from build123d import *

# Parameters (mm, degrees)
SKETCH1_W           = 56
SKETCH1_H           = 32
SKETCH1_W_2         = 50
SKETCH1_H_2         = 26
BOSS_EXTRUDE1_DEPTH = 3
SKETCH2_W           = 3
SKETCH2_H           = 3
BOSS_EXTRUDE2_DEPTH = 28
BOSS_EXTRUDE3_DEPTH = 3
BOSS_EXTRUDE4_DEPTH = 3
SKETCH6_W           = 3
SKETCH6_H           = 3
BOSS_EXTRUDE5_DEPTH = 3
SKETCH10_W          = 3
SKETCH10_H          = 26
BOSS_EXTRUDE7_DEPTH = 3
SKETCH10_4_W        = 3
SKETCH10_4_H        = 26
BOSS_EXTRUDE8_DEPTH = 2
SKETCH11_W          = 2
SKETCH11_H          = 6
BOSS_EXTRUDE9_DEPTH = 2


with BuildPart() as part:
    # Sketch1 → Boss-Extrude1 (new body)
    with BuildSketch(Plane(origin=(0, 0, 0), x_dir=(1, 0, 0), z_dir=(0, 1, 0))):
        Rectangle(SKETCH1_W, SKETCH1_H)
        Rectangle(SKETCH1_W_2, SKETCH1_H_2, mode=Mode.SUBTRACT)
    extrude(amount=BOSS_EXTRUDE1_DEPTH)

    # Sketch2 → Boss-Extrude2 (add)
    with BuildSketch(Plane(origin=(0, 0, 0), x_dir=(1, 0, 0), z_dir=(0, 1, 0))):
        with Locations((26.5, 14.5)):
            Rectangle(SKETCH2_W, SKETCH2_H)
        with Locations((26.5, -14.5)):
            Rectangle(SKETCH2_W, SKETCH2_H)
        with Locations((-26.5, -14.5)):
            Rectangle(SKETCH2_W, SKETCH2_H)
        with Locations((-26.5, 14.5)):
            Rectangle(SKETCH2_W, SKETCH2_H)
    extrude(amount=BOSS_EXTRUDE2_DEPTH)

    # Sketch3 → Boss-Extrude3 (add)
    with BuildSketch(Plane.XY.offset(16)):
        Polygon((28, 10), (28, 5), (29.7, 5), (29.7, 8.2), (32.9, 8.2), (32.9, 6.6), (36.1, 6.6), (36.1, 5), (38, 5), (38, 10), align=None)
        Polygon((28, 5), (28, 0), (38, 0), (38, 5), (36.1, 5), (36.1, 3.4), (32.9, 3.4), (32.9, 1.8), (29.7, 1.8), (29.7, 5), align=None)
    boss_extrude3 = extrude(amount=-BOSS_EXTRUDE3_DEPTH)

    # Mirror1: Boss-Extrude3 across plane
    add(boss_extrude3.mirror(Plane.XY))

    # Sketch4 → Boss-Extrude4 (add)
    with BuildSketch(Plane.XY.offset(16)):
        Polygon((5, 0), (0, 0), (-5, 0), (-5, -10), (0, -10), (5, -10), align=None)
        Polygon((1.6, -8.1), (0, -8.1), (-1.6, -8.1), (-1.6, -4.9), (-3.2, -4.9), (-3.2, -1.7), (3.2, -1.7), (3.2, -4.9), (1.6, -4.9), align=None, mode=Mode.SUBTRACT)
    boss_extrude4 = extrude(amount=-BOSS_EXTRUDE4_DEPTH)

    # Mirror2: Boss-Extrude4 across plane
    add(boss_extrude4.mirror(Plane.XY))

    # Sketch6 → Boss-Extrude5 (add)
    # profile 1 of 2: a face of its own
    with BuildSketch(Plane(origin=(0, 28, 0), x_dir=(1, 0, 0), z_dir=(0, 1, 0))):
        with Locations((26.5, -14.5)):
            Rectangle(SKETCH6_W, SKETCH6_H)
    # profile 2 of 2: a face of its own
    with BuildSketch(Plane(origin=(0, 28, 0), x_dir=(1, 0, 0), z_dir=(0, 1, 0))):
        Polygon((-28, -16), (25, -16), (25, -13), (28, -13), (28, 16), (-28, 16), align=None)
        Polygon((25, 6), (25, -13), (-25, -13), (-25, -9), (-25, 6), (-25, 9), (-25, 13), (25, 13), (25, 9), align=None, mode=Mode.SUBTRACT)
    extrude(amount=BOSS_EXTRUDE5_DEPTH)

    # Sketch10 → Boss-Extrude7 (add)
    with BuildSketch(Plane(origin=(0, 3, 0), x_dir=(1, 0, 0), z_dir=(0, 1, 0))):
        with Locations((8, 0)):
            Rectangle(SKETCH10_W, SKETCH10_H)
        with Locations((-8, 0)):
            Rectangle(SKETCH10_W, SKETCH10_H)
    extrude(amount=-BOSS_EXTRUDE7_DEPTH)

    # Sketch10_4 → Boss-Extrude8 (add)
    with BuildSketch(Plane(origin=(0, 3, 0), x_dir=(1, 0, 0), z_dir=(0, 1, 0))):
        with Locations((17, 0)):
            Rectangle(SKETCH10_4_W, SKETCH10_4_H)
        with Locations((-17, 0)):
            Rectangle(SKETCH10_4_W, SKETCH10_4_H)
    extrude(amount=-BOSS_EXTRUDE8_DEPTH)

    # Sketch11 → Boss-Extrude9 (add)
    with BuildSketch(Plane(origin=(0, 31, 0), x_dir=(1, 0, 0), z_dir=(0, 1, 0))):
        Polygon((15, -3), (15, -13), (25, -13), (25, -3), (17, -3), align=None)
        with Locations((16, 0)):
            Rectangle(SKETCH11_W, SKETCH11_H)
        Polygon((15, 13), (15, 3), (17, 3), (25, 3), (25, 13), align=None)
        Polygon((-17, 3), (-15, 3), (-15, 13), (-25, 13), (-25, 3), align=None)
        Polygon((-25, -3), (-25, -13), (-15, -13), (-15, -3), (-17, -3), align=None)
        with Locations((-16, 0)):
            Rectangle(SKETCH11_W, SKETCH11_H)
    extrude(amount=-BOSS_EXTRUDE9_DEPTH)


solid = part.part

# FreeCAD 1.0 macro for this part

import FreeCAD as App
import Part
import Sketcher
Q = App.Units.Quantity


def add_polygon(sketch, points):
    """Adds a closed chain of lines whose ends are joined by coincident constraints."""
    first, n = sketch.GeometryCount, len(points)
    for a, b in zip(points, points[1:] + points[:1]):
        sketch.addGeometry(Part.LineSegment(App.Vector(*a, 0), App.Vector(*b, 0)), False)
    for i in range(n):
        sketch.addConstraint(Sketcher.Constraint("Coincident", first + i, 2, first + (i + 1) % n, 1))

doc = App.newDocument("Part")
body = doc.addObject("PartDesign::Body", "Body")

sketch1 = body.newObject("Sketcher::SketchObject", "Sketch")
sketch1.AttachmentSupport = (doc.getObject("XZ_Plane"), [""])
sketch1.MapMode = "FlatFace"
add_polygon(sketch1, [(-28, -16), (-28, 16), (28, 16), (28, -16)])
add_polygon(sketch1, [(25, 13), (-25, 13), (-25, -13), (25, -13)])
sketch1.addConstraint(Sketcher.Constraint("Vertical", 0))
sketch1.addConstraint(Sketcher.Constraint("Horizontal", 1))
sketch1.addConstraint(Sketcher.Constraint("Vertical", 2))
sketch1.addConstraint(Sketcher.Constraint("Horizontal", 3))
sketch1.addConstraint(Sketcher.Constraint("Horizontal", 4))
sketch1.addConstraint(Sketcher.Constraint("Vertical", 5))
sketch1.addConstraint(Sketcher.Constraint("Horizontal", 6))
sketch1.addConstraint(Sketcher.Constraint("Vertical", 7))
sketch1.addConstraint(Sketcher.Constraint("Symmetric", 0, 2, 2, 2, -1, 1))
sketch1.addConstraint(Sketcher.Constraint("Symmetric", 4, 2, 6, 2, -1, 1))
sketch1.addConstraint(Sketcher.Constraint("DistanceX", 1, 1, 1, 2, Q("56 mm")))
sketch1.addConstraint(Sketcher.Constraint("DistanceX", 4, 2, 4, 1, Q("50 mm")))
sketch1.addConstraint(Sketcher.Constraint("DistanceY", 0, 1, 0, 2, Q("32 mm")))
sketch1.addConstraint(Sketcher.Constraint("DistanceY", 5, 2, 5, 1, Q("26 mm")))
pad1 = body.newObject("PartDesign::Pad", "Pad")
pad1.Profile = sketch1
pad1.Length = 3
pad1.Reversed = True

sketch2 = body.newObject("Sketcher::SketchObject", "Sketch001")
sketch2.AttachmentSupport = (doc.getObject("XZ_Plane"), [""])
sketch2.MapMode = "FlatFace"
add_polygon(sketch2, [(25, -16), (25, -13), (28, -13), (28, -16)])
add_polygon(sketch2, [(25, 13), (25, 16), (28, 16), (28, 13)])
add_polygon(sketch2, [(-28, 13), (-28, 16), (-25, 16), (-25, 13)])
add_polygon(sketch2, [(-28, -16), (-28, -13), (-25, -13), (-25, -16)])
sketch2.addConstraint(Sketcher.Constraint("Vertical", 0))
sketch2.addConstraint(Sketcher.Constraint("Horizontal", 1))
sketch2.addConstraint(Sketcher.Constraint("Vertical", 2))
sketch2.addConstraint(Sketcher.Constraint("Horizontal", 3))
sketch2.addConstraint(Sketcher.Constraint("Vertical", 4))
sketch2.addConstraint(Sketcher.Constraint("Horizontal", 5))
sketch2.addConstraint(Sketcher.Constraint("Vertical", 6))
sketch2.addConstraint(Sketcher.Constraint("Horizontal", 7))
sketch2.addConstraint(Sketcher.Constraint("Vertical", 8))
sketch2.addConstraint(Sketcher.Constraint("Horizontal", 9))
sketch2.addConstraint(Sketcher.Constraint("Vertical", 10))
sketch2.addConstraint(Sketcher.Constraint("Horizontal", 11))
sketch2.addConstraint(Sketcher.Constraint("Vertical", 12))
sketch2.addConstraint(Sketcher.Constraint("Horizontal", 13))
sketch2.addConstraint(Sketcher.Constraint("Vertical", 14))
sketch2.addConstraint(Sketcher.Constraint("Horizontal", 15))
sketch2.addConstraint(Sketcher.Constraint("Symmetric", 2, 2, 8, 2, -1, 1))
sketch2.addConstraint(Sketcher.Constraint("Symmetric", 0, 2, 10, 2, -1, 1))
sketch2.addConstraint(Sketcher.Constraint("Symmetric", 6, 2, 12, 2, -1, 1))
sketch2.addConstraint(Sketcher.Constraint("Symmetric", 4, 2, 14, 2, -1, 1))
sketch2.addConstraint(Sketcher.Constraint("Symmetric", 5, 2, 8, 2, -2))
sketch2.addConstraint(Sketcher.Constraint("Symmetric", 7, 2, 10, 2, -2))
sketch2.addConstraint(Sketcher.Constraint("Equal", 15, 0))
sketch2.addConstraint(Sketcher.Constraint("DistanceX", 1, 1, 1, 2, Q("3 mm")))
sketch2.addConstraint(Sketcher.Constraint("DistanceX", -1, 1, 0, 2, Q("25 mm")))
sketch2.addConstraint(Sketcher.Constraint("DistanceY", 0, 2, -1, 1, Q("13 mm")))
pad2 = body.newObject("PartDesign::Pad", "Pad001")
pad2.Profile = sketch2
pad2.Length = 28
pad2.Reversed = True

sketch3 = body.newObject("Sketcher::SketchObject", "Sketch002")
sketch3.AttachmentSupport = (doc.getObject("XY_Plane"), [""])
sketch3.MapMode = "FlatFace"
sketch3.AttachmentOffset = App.Placement(App.Vector(0, 0, 16), App.Rotation())
add_polygon(sketch3, [(28, 10), (28, 0), (38, 0), (38, 10)])
add_polygon(sketch3, [(29.7, 8.2), (32.9, 8.2), (32.9, 6.6), (36.1, 6.6), (36.1, 3.4), (32.9, 3.4), (32.9, 1.8), (29.7, 1.8)])
sketch3.addConstraint(Sketcher.Constraint("Vertical", 0))
sketch3.addConstraint(Sketcher.Constraint("Horizontal", 1))
sketch3.addConstraint(Sketcher.Constraint("Vertical", 2))
sketch3.addConstraint(Sketcher.Constraint("Horizontal", 3))
sketch3.addConstraint(Sketcher.Constraint("Horizontal", 4))
sketch3.addConstraint(Sketcher.Constraint("Vertical", 5))
sketch3.addConstraint(Sketcher.Constraint("Horizontal", 6))
sketch3.addConstraint(Sketcher.Constraint("Vertical", 7))
sketch3.addConstraint(Sketcher.Constraint("Horizontal", 8))
sketch3.addConstraint(Sketcher.Constraint("Vertical", 9))
sketch3.addConstraint(Sketcher.Constraint("Horizontal", 10))
sketch3.addConstraint(Sketcher.Constraint("Vertical", 11))
sketch3.addConstraint(Sketcher.Constraint("PointOnObject", 0, 2, -1))
sketch3.addConstraint(Sketcher.Constraint("Vertical", 5, 2, 8, 2))
sketch3.addConstraint(Sketcher.Constraint("Equal", 4, 6))
sketch3.addConstraint(Sketcher.Constraint("Equal", 3, 0))
sketch3.addConstraint(Sketcher.Constraint("Equal", 10, 7))
sketch3.addConstraint(Sketcher.Constraint("Equal", 5, 9))
sketch3.addConstraint(Sketcher.Constraint("DistanceX", 1, 1, 1, 2, Q("10 mm")))
sketch3.addConstraint(Sketcher.Constraint("DistanceX", 4, 1, 4, 2, Q("3.2 mm")))
sketch3.addConstraint(Sketcher.Constraint("DistanceY", 5, 2, 5, 1, Q("1.6 mm")))
sketch3.addConstraint(Sketcher.Constraint("DistanceX", -1, 1, 0, 2, Q("28 mm")))
sketch3.addConstraint(Sketcher.Constraint("DistanceX", -1, 1, 4, 2, Q("32.9 mm")))
sketch3.addConstraint(Sketcher.Constraint("DistanceY", -1, 1, 4, 2, Q("8.2 mm")))
pad3 = body.newObject("PartDesign::Pad", "Pad002")
pad3.Profile = sketch3
pad3.Length = 3
pad3.Reversed = True
doc.recompute()

mirrored = body.newObject("PartDesign::Mirrored", "Mirrored")
mirrored.Originals = [pad3]
mirrored.MirrorPlane = (doc.getObject("XY_Plane"), [""])
body.Tip = mirrored

sketch4 = body.newObject("Sketcher::SketchObject", "Sketch003")
sketch4.AttachmentSupport = (doc.getObject("XY_Plane"), [""])
sketch4.MapMode = "FlatFace"
sketch4.AttachmentOffset = App.Placement(App.Vector(0, 0, 16), App.Rotation())
add_polygon(sketch4, [(5, 0), (-5, 0), (-5, -10), (5, -10)])
add_polygon(sketch4, [(1.6, -4.9), (1.6, -8.1), (-1.6, -8.1), (-1.6, -4.9), (-3.2, -4.9), (-3.2, -1.7), (3.2, -1.7), (3.2, -4.9)])
sketch4.addConstraint(Sketcher.Constraint("Horizontal", 0))
sketch4.addConstraint(Sketcher.Constraint("Vertical", 1))
sketch4.addConstraint(Sketcher.Constraint("Horizontal", 2))
sketch4.addConstraint(Sketcher.Constraint("Vertical", 3))
sketch4.addConstraint(Sketcher.Constraint("Vertical", 4))
sketch4.addConstraint(Sketcher.Constraint("Horizontal", 5))
sketch4.addConstraint(Sketcher.Constraint("Vertical", 6))
sketch4.addConstraint(Sketcher.Constraint("Horizontal", 7))
sketch4.addConstraint(Sketcher.Constraint("Vertical", 8))
sketch4.addConstraint(Sketcher.Constraint("Horizontal", 9))
sketch4.addConstraint(Sketcher.Constraint("Vertical", 10))
sketch4.addConstraint(Sketcher.Constraint("Horizontal", 11))
sketch4.addConstraint(Sketcher.Constraint("Symmetric", 0, 2, 3, 2, -1, 1))
sketch4.addConstraint(Sketcher.Constraint("Symmetric", 7, 2, 10, 2, -2))
sketch4.addConstraint(Sketcher.Constraint("Equal", 7, 11))
sketch4.addConstraint(Sketcher.Constraint("Equal", 2, 1))
sketch4.addConstraint(Sketcher.Constraint("Equal", 5, 4))
sketch4.addConstraint(Sketcher.Constraint("Equal", 6, 8))
sketch4.addConstraint(Sketcher.Constraint("DistanceX", 0, 2, 0, 1, Q("10 mm")))
sketch4.addConstraint(Sketcher.Constraint("DistanceX", 5, 2, 5, 1, Q("3.2 mm")))
sketch4.addConstraint(Sketcher.Constraint("DistanceX", 7, 2, 7, 1, Q("1.6 mm")))
sketch4.addConstraint(Sketcher.Constraint("DistanceY", 4, 2, -1, 1, Q("8.1 mm")))
pad4 = body.newObject("PartDesign::Pad", "Pad003")
pad4.Profile = sketch4
pad4.Length = 3
pad4.Reversed = True
doc.recompute()

mirrored2 = body.newObject("PartDesign::Mirrored", "Mirrored001")
mirrored2.Originals = [pad4]
mirrored2.MirrorPlane = (doc.getObject("XY_Plane"), [""])
body.Tip = mirrored2

sketch5 = body.newObject("Sketcher::SketchObject", "Sketch004")
sketch5.AttachmentSupport = (doc.getObject("XZ_Plane"), [""])
sketch5.MapMode = "FlatFace"
sketch5.AttachmentOffset = App.Placement(App.Vector(0, 0, -28), App.Rotation())
add_polygon(sketch5, [(28, 16), (28, -16), (-28, -16), (-28, 16)])
add_polygon(sketch5, [(-25, 13), (-25, -13), (25, -13), (25, 13)])
sketch5.addConstraint(Sketcher.Constraint("Vertical", 0))
sketch5.addConstraint(Sketcher.Constraint("Horizontal", 1))
sketch5.addConstraint(Sketcher.Constraint("Vertical", 2))
sketch5.addConstraint(Sketcher.Constraint("Horizontal", 3))
sketch5.addConstraint(Sketcher.Constraint("Vertical", 4))
sketch5.addConstraint(Sketcher.Constraint("Horizontal", 5))
sketch5.addConstraint(Sketcher.Constraint("Vertical", 6))
sketch5.addConstraint(Sketcher.Constraint("Horizontal", 7))
sketch5.addConstraint(Sketcher.Constraint("Symmetric", 0, 2, 2, 2, -1, 1))
sketch5.addConstraint(Sketcher.Constraint("Symmetric", 4, 2, 6, 2, -1, 1))
sketch5.addConstraint(Sketcher.Constraint("DistanceX", 1, 2, 1, 1, Q("56 mm")))
sketch5.addConstraint(Sketcher.Constraint("DistanceX", 5, 1, 5, 2, Q("50 mm")))
sketch5.addConstraint(Sketcher.Constraint("DistanceY", 0, 2, 0, 1, Q("32 mm")))
sketch5.addConstraint(Sketcher.Constraint("DistanceY", 4, 2, 4, 1, Q("26 mm")))
pad5 = body.newObject("PartDesign::Pad", "Pad004")
pad5.Profile = sketch5
pad5.Length = 3
pad5.Reversed = True

sketch6 = body.newObject("Sketcher::SketchObject", "Sketch005")
sketch6.AttachmentSupport = (doc.getObject("XZ_Plane"), [""])
sketch6.MapMode = "FlatFace"
sketch6.AttachmentOffset = App.Placement(App.Vector(0, 0, -3), App.Rotation())
add_polygon(sketch6, [(6.5, -13), (6.5, 13), (9.5, 13), (9.5, -13)])
add_polygon(sketch6, [(-9.5, -13), (-9.5, 13), (-6.5, 13), (-6.5, -13)])
sketch6.addConstraint(Sketcher.Constraint("Vertical", 0))
sketch6.addConstraint(Sketcher.Constraint("Horizontal", 1))
sketch6.addConstraint(Sketcher.Constraint("Vertical", 2))
sketch6.addConstraint(Sketcher.Constraint("Horizontal", 3))
sketch6.addConstraint(Sketcher.Constraint("Vertical", 4))
sketch6.addConstraint(Sketcher.Constraint("Horizontal", 5))
sketch6.addConstraint(Sketcher.Constraint("Vertical", 6))
sketch6.addConstraint(Sketcher.Constraint("Horizontal", 7))
sketch6.addConstraint(Sketcher.Constraint("Symmetric", 2, 2, 4, 2, -1, 1))
sketch6.addConstraint(Sketcher.Constraint("Symmetric", 0, 2, 6, 2, -1, 1))
sketch6.addConstraint(Sketcher.Constraint("Horizontal", 1, 2, 4, 2))
sketch6.addConstraint(Sketcher.Constraint("DistanceX", 1, 1, 1, 2, Q("3 mm")))
sketch6.addConstraint(Sketcher.Constraint("DistanceY", 0, 1, 0, 2, Q("26 mm")))
sketch6.addConstraint(Sketcher.Constraint("DistanceX", 4, 2, 0, 2, Q("16 mm")))
pad6 = body.newObject("PartDesign::Pad", "Pad005")
pad6.Profile = sketch6
pad6.Length = 3

sketch7 = body.newObject("Sketcher::SketchObject", "Sketch006")
sketch7.AttachmentSupport = (doc.getObject("XZ_Plane"), [""])
sketch7.MapMode = "FlatFace"
sketch7.AttachmentOffset = App.Placement(App.Vector(0, 0, -3), App.Rotation())
add_polygon(sketch7, [(15.5, -13), (15.5, 13), (18.5, 13), (18.5, -13)])
add_polygon(sketch7, [(-18.5, -13), (-18.5, 13), (-15.5, 13), (-15.5, -13)])
sketch7.addConstraint(Sketcher.Constraint("Vertical", 0))
sketch7.addConstraint(Sketcher.Constraint("Horizontal", 1))
sketch7.addConstraint(Sketcher.Constraint("Vertical", 2))
sketch7.addConstraint(Sketcher.Constraint("Horizontal", 3))
sketch7.addConstraint(Sketcher.Constraint("Vertical", 4))
sketch7.addConstraint(Sketcher.Constraint("Horizontal", 5))
sketch7.addConstraint(Sketcher.Constraint("Vertical", 6))
sketch7.addConstraint(Sketcher.Constraint("Horizontal", 7))
sketch7.addConstraint(Sketcher.Constraint("Symmetric", 2, 2, 4, 2, -1, 1))
sketch7.addConstraint(Sketcher.Constraint("Symmetric", 0, 2, 6, 2, -1, 1))
sketch7.addConstraint(Sketcher.Constraint("Horizontal", 1, 2, 4, 2))
sketch7.addConstraint(Sketcher.Constraint("DistanceX", 1, 1, 1, 2, Q("3 mm")))
sketch7.addConstraint(Sketcher.Constraint("DistanceY", 0, 1, 0, 2, Q("26 mm")))
sketch7.addConstraint(Sketcher.Constraint("DistanceX", 4, 2, 0, 2, Q("34 mm")))
pad7 = body.newObject("PartDesign::Pad", "Pad006")
pad7.Profile = sketch7
pad7.Length = 2

sketch8 = body.newObject("Sketcher::SketchObject", "Sketch007")
sketch8.AttachmentSupport = (doc.getObject("XZ_Plane"), [""])
sketch8.MapMode = "FlatFace"
sketch8.AttachmentOffset = App.Placement(App.Vector(0, 0, -31), App.Rotation())
add_polygon(sketch8, [(15, 13), (25, 13), (25, 3), (17, 3), (17, -3), (25, -3), (25, -13), (15, -13)])
add_polygon(sketch8, [(-15, -13), (-25, -13), (-25, -3), (-17, -3), (-17, 3), (-25, 3), (-25, 13), (-15, 13)])
sketch8.addConstraint(Sketcher.Constraint("Horizontal", 0))
sketch8.addConstraint(Sketcher.Constraint("Vertical", 1))
sketch8.addConstraint(Sketcher.Constraint("Horizontal", 2))
sketch8.addConstraint(Sketcher.Constraint("Vertical", 3))
sketch8.addConstraint(Sketcher.Constraint("Horizontal", 4))
sketch8.addConstraint(Sketcher.Constraint("Vertical", 5))
sketch8.addConstraint(Sketcher.Constraint("Horizontal", 6))
sketch8.addConstraint(Sketcher.Constraint("Vertical", 7))
sketch8.addConstraint(Sketcher.Constraint("Horizontal", 8))
sketch8.addConstraint(Sketcher.Constraint("Vertical", 9))
sketch8.addConstraint(Sketcher.Constraint("Horizontal", 10))
sketch8.addConstraint(Sketcher.Constraint("Vertical", 11))
sketch8.addConstraint(Sketcher.Constraint("Horizontal", 12))
sketch8.addConstraint(Sketcher.Constraint("Vertical", 13))
sketch8.addConstraint(Sketcher.Constraint("Horizontal", 14))
sketch8.addConstraint(Sketcher.Constraint("Vertical", 15))
sketch8.addConstraint(Sketcher.Constraint("Symmetric", 0, 2, 8, 2, -1, 1))
sketch8.addConstraint(Sketcher.Constraint("Symmetric", 2, 2, 10, 2, -1, 1))
sketch8.addConstraint(Sketcher.Constraint("Symmetric", 4, 2, 12, 2, -1, 1))
sketch8.addConstraint(Sketcher.Constraint("Symmetric", 6, 2, 14, 2, -1, 1))
sketch8.addConstraint(Sketcher.Constraint("Symmetric", 5, 2, 8, 2, -2))
sketch8.addConstraint(Sketcher.Constraint("Horizontal", 4, 2, 9, 2))
sketch8.addConstraint(Sketcher.Constraint("Equal", 14, 1))
sketch8.addConstraint(Sketcher.Constraint("DistanceX", 0, 1, 0, 2, Q("10 mm")))
sketch8.addConstraint(Sketcher.Constraint("DistanceX", 2, 2, 2, 1, Q("8 mm")))
sketch8.addConstraint(Sketcher.Constraint("DistanceY", 3, 2, 3, 1, Q("6 mm")))
sketch8.addConstraint(Sketcher.Constraint("DistanceX", -1, 1, 0, 2, Q("25 mm")))
pad8 = body.newObject("PartDesign::Pad", "Pad007")
pad8.Profile = sketch8
pad8.Length = 2

doc.recompute()
